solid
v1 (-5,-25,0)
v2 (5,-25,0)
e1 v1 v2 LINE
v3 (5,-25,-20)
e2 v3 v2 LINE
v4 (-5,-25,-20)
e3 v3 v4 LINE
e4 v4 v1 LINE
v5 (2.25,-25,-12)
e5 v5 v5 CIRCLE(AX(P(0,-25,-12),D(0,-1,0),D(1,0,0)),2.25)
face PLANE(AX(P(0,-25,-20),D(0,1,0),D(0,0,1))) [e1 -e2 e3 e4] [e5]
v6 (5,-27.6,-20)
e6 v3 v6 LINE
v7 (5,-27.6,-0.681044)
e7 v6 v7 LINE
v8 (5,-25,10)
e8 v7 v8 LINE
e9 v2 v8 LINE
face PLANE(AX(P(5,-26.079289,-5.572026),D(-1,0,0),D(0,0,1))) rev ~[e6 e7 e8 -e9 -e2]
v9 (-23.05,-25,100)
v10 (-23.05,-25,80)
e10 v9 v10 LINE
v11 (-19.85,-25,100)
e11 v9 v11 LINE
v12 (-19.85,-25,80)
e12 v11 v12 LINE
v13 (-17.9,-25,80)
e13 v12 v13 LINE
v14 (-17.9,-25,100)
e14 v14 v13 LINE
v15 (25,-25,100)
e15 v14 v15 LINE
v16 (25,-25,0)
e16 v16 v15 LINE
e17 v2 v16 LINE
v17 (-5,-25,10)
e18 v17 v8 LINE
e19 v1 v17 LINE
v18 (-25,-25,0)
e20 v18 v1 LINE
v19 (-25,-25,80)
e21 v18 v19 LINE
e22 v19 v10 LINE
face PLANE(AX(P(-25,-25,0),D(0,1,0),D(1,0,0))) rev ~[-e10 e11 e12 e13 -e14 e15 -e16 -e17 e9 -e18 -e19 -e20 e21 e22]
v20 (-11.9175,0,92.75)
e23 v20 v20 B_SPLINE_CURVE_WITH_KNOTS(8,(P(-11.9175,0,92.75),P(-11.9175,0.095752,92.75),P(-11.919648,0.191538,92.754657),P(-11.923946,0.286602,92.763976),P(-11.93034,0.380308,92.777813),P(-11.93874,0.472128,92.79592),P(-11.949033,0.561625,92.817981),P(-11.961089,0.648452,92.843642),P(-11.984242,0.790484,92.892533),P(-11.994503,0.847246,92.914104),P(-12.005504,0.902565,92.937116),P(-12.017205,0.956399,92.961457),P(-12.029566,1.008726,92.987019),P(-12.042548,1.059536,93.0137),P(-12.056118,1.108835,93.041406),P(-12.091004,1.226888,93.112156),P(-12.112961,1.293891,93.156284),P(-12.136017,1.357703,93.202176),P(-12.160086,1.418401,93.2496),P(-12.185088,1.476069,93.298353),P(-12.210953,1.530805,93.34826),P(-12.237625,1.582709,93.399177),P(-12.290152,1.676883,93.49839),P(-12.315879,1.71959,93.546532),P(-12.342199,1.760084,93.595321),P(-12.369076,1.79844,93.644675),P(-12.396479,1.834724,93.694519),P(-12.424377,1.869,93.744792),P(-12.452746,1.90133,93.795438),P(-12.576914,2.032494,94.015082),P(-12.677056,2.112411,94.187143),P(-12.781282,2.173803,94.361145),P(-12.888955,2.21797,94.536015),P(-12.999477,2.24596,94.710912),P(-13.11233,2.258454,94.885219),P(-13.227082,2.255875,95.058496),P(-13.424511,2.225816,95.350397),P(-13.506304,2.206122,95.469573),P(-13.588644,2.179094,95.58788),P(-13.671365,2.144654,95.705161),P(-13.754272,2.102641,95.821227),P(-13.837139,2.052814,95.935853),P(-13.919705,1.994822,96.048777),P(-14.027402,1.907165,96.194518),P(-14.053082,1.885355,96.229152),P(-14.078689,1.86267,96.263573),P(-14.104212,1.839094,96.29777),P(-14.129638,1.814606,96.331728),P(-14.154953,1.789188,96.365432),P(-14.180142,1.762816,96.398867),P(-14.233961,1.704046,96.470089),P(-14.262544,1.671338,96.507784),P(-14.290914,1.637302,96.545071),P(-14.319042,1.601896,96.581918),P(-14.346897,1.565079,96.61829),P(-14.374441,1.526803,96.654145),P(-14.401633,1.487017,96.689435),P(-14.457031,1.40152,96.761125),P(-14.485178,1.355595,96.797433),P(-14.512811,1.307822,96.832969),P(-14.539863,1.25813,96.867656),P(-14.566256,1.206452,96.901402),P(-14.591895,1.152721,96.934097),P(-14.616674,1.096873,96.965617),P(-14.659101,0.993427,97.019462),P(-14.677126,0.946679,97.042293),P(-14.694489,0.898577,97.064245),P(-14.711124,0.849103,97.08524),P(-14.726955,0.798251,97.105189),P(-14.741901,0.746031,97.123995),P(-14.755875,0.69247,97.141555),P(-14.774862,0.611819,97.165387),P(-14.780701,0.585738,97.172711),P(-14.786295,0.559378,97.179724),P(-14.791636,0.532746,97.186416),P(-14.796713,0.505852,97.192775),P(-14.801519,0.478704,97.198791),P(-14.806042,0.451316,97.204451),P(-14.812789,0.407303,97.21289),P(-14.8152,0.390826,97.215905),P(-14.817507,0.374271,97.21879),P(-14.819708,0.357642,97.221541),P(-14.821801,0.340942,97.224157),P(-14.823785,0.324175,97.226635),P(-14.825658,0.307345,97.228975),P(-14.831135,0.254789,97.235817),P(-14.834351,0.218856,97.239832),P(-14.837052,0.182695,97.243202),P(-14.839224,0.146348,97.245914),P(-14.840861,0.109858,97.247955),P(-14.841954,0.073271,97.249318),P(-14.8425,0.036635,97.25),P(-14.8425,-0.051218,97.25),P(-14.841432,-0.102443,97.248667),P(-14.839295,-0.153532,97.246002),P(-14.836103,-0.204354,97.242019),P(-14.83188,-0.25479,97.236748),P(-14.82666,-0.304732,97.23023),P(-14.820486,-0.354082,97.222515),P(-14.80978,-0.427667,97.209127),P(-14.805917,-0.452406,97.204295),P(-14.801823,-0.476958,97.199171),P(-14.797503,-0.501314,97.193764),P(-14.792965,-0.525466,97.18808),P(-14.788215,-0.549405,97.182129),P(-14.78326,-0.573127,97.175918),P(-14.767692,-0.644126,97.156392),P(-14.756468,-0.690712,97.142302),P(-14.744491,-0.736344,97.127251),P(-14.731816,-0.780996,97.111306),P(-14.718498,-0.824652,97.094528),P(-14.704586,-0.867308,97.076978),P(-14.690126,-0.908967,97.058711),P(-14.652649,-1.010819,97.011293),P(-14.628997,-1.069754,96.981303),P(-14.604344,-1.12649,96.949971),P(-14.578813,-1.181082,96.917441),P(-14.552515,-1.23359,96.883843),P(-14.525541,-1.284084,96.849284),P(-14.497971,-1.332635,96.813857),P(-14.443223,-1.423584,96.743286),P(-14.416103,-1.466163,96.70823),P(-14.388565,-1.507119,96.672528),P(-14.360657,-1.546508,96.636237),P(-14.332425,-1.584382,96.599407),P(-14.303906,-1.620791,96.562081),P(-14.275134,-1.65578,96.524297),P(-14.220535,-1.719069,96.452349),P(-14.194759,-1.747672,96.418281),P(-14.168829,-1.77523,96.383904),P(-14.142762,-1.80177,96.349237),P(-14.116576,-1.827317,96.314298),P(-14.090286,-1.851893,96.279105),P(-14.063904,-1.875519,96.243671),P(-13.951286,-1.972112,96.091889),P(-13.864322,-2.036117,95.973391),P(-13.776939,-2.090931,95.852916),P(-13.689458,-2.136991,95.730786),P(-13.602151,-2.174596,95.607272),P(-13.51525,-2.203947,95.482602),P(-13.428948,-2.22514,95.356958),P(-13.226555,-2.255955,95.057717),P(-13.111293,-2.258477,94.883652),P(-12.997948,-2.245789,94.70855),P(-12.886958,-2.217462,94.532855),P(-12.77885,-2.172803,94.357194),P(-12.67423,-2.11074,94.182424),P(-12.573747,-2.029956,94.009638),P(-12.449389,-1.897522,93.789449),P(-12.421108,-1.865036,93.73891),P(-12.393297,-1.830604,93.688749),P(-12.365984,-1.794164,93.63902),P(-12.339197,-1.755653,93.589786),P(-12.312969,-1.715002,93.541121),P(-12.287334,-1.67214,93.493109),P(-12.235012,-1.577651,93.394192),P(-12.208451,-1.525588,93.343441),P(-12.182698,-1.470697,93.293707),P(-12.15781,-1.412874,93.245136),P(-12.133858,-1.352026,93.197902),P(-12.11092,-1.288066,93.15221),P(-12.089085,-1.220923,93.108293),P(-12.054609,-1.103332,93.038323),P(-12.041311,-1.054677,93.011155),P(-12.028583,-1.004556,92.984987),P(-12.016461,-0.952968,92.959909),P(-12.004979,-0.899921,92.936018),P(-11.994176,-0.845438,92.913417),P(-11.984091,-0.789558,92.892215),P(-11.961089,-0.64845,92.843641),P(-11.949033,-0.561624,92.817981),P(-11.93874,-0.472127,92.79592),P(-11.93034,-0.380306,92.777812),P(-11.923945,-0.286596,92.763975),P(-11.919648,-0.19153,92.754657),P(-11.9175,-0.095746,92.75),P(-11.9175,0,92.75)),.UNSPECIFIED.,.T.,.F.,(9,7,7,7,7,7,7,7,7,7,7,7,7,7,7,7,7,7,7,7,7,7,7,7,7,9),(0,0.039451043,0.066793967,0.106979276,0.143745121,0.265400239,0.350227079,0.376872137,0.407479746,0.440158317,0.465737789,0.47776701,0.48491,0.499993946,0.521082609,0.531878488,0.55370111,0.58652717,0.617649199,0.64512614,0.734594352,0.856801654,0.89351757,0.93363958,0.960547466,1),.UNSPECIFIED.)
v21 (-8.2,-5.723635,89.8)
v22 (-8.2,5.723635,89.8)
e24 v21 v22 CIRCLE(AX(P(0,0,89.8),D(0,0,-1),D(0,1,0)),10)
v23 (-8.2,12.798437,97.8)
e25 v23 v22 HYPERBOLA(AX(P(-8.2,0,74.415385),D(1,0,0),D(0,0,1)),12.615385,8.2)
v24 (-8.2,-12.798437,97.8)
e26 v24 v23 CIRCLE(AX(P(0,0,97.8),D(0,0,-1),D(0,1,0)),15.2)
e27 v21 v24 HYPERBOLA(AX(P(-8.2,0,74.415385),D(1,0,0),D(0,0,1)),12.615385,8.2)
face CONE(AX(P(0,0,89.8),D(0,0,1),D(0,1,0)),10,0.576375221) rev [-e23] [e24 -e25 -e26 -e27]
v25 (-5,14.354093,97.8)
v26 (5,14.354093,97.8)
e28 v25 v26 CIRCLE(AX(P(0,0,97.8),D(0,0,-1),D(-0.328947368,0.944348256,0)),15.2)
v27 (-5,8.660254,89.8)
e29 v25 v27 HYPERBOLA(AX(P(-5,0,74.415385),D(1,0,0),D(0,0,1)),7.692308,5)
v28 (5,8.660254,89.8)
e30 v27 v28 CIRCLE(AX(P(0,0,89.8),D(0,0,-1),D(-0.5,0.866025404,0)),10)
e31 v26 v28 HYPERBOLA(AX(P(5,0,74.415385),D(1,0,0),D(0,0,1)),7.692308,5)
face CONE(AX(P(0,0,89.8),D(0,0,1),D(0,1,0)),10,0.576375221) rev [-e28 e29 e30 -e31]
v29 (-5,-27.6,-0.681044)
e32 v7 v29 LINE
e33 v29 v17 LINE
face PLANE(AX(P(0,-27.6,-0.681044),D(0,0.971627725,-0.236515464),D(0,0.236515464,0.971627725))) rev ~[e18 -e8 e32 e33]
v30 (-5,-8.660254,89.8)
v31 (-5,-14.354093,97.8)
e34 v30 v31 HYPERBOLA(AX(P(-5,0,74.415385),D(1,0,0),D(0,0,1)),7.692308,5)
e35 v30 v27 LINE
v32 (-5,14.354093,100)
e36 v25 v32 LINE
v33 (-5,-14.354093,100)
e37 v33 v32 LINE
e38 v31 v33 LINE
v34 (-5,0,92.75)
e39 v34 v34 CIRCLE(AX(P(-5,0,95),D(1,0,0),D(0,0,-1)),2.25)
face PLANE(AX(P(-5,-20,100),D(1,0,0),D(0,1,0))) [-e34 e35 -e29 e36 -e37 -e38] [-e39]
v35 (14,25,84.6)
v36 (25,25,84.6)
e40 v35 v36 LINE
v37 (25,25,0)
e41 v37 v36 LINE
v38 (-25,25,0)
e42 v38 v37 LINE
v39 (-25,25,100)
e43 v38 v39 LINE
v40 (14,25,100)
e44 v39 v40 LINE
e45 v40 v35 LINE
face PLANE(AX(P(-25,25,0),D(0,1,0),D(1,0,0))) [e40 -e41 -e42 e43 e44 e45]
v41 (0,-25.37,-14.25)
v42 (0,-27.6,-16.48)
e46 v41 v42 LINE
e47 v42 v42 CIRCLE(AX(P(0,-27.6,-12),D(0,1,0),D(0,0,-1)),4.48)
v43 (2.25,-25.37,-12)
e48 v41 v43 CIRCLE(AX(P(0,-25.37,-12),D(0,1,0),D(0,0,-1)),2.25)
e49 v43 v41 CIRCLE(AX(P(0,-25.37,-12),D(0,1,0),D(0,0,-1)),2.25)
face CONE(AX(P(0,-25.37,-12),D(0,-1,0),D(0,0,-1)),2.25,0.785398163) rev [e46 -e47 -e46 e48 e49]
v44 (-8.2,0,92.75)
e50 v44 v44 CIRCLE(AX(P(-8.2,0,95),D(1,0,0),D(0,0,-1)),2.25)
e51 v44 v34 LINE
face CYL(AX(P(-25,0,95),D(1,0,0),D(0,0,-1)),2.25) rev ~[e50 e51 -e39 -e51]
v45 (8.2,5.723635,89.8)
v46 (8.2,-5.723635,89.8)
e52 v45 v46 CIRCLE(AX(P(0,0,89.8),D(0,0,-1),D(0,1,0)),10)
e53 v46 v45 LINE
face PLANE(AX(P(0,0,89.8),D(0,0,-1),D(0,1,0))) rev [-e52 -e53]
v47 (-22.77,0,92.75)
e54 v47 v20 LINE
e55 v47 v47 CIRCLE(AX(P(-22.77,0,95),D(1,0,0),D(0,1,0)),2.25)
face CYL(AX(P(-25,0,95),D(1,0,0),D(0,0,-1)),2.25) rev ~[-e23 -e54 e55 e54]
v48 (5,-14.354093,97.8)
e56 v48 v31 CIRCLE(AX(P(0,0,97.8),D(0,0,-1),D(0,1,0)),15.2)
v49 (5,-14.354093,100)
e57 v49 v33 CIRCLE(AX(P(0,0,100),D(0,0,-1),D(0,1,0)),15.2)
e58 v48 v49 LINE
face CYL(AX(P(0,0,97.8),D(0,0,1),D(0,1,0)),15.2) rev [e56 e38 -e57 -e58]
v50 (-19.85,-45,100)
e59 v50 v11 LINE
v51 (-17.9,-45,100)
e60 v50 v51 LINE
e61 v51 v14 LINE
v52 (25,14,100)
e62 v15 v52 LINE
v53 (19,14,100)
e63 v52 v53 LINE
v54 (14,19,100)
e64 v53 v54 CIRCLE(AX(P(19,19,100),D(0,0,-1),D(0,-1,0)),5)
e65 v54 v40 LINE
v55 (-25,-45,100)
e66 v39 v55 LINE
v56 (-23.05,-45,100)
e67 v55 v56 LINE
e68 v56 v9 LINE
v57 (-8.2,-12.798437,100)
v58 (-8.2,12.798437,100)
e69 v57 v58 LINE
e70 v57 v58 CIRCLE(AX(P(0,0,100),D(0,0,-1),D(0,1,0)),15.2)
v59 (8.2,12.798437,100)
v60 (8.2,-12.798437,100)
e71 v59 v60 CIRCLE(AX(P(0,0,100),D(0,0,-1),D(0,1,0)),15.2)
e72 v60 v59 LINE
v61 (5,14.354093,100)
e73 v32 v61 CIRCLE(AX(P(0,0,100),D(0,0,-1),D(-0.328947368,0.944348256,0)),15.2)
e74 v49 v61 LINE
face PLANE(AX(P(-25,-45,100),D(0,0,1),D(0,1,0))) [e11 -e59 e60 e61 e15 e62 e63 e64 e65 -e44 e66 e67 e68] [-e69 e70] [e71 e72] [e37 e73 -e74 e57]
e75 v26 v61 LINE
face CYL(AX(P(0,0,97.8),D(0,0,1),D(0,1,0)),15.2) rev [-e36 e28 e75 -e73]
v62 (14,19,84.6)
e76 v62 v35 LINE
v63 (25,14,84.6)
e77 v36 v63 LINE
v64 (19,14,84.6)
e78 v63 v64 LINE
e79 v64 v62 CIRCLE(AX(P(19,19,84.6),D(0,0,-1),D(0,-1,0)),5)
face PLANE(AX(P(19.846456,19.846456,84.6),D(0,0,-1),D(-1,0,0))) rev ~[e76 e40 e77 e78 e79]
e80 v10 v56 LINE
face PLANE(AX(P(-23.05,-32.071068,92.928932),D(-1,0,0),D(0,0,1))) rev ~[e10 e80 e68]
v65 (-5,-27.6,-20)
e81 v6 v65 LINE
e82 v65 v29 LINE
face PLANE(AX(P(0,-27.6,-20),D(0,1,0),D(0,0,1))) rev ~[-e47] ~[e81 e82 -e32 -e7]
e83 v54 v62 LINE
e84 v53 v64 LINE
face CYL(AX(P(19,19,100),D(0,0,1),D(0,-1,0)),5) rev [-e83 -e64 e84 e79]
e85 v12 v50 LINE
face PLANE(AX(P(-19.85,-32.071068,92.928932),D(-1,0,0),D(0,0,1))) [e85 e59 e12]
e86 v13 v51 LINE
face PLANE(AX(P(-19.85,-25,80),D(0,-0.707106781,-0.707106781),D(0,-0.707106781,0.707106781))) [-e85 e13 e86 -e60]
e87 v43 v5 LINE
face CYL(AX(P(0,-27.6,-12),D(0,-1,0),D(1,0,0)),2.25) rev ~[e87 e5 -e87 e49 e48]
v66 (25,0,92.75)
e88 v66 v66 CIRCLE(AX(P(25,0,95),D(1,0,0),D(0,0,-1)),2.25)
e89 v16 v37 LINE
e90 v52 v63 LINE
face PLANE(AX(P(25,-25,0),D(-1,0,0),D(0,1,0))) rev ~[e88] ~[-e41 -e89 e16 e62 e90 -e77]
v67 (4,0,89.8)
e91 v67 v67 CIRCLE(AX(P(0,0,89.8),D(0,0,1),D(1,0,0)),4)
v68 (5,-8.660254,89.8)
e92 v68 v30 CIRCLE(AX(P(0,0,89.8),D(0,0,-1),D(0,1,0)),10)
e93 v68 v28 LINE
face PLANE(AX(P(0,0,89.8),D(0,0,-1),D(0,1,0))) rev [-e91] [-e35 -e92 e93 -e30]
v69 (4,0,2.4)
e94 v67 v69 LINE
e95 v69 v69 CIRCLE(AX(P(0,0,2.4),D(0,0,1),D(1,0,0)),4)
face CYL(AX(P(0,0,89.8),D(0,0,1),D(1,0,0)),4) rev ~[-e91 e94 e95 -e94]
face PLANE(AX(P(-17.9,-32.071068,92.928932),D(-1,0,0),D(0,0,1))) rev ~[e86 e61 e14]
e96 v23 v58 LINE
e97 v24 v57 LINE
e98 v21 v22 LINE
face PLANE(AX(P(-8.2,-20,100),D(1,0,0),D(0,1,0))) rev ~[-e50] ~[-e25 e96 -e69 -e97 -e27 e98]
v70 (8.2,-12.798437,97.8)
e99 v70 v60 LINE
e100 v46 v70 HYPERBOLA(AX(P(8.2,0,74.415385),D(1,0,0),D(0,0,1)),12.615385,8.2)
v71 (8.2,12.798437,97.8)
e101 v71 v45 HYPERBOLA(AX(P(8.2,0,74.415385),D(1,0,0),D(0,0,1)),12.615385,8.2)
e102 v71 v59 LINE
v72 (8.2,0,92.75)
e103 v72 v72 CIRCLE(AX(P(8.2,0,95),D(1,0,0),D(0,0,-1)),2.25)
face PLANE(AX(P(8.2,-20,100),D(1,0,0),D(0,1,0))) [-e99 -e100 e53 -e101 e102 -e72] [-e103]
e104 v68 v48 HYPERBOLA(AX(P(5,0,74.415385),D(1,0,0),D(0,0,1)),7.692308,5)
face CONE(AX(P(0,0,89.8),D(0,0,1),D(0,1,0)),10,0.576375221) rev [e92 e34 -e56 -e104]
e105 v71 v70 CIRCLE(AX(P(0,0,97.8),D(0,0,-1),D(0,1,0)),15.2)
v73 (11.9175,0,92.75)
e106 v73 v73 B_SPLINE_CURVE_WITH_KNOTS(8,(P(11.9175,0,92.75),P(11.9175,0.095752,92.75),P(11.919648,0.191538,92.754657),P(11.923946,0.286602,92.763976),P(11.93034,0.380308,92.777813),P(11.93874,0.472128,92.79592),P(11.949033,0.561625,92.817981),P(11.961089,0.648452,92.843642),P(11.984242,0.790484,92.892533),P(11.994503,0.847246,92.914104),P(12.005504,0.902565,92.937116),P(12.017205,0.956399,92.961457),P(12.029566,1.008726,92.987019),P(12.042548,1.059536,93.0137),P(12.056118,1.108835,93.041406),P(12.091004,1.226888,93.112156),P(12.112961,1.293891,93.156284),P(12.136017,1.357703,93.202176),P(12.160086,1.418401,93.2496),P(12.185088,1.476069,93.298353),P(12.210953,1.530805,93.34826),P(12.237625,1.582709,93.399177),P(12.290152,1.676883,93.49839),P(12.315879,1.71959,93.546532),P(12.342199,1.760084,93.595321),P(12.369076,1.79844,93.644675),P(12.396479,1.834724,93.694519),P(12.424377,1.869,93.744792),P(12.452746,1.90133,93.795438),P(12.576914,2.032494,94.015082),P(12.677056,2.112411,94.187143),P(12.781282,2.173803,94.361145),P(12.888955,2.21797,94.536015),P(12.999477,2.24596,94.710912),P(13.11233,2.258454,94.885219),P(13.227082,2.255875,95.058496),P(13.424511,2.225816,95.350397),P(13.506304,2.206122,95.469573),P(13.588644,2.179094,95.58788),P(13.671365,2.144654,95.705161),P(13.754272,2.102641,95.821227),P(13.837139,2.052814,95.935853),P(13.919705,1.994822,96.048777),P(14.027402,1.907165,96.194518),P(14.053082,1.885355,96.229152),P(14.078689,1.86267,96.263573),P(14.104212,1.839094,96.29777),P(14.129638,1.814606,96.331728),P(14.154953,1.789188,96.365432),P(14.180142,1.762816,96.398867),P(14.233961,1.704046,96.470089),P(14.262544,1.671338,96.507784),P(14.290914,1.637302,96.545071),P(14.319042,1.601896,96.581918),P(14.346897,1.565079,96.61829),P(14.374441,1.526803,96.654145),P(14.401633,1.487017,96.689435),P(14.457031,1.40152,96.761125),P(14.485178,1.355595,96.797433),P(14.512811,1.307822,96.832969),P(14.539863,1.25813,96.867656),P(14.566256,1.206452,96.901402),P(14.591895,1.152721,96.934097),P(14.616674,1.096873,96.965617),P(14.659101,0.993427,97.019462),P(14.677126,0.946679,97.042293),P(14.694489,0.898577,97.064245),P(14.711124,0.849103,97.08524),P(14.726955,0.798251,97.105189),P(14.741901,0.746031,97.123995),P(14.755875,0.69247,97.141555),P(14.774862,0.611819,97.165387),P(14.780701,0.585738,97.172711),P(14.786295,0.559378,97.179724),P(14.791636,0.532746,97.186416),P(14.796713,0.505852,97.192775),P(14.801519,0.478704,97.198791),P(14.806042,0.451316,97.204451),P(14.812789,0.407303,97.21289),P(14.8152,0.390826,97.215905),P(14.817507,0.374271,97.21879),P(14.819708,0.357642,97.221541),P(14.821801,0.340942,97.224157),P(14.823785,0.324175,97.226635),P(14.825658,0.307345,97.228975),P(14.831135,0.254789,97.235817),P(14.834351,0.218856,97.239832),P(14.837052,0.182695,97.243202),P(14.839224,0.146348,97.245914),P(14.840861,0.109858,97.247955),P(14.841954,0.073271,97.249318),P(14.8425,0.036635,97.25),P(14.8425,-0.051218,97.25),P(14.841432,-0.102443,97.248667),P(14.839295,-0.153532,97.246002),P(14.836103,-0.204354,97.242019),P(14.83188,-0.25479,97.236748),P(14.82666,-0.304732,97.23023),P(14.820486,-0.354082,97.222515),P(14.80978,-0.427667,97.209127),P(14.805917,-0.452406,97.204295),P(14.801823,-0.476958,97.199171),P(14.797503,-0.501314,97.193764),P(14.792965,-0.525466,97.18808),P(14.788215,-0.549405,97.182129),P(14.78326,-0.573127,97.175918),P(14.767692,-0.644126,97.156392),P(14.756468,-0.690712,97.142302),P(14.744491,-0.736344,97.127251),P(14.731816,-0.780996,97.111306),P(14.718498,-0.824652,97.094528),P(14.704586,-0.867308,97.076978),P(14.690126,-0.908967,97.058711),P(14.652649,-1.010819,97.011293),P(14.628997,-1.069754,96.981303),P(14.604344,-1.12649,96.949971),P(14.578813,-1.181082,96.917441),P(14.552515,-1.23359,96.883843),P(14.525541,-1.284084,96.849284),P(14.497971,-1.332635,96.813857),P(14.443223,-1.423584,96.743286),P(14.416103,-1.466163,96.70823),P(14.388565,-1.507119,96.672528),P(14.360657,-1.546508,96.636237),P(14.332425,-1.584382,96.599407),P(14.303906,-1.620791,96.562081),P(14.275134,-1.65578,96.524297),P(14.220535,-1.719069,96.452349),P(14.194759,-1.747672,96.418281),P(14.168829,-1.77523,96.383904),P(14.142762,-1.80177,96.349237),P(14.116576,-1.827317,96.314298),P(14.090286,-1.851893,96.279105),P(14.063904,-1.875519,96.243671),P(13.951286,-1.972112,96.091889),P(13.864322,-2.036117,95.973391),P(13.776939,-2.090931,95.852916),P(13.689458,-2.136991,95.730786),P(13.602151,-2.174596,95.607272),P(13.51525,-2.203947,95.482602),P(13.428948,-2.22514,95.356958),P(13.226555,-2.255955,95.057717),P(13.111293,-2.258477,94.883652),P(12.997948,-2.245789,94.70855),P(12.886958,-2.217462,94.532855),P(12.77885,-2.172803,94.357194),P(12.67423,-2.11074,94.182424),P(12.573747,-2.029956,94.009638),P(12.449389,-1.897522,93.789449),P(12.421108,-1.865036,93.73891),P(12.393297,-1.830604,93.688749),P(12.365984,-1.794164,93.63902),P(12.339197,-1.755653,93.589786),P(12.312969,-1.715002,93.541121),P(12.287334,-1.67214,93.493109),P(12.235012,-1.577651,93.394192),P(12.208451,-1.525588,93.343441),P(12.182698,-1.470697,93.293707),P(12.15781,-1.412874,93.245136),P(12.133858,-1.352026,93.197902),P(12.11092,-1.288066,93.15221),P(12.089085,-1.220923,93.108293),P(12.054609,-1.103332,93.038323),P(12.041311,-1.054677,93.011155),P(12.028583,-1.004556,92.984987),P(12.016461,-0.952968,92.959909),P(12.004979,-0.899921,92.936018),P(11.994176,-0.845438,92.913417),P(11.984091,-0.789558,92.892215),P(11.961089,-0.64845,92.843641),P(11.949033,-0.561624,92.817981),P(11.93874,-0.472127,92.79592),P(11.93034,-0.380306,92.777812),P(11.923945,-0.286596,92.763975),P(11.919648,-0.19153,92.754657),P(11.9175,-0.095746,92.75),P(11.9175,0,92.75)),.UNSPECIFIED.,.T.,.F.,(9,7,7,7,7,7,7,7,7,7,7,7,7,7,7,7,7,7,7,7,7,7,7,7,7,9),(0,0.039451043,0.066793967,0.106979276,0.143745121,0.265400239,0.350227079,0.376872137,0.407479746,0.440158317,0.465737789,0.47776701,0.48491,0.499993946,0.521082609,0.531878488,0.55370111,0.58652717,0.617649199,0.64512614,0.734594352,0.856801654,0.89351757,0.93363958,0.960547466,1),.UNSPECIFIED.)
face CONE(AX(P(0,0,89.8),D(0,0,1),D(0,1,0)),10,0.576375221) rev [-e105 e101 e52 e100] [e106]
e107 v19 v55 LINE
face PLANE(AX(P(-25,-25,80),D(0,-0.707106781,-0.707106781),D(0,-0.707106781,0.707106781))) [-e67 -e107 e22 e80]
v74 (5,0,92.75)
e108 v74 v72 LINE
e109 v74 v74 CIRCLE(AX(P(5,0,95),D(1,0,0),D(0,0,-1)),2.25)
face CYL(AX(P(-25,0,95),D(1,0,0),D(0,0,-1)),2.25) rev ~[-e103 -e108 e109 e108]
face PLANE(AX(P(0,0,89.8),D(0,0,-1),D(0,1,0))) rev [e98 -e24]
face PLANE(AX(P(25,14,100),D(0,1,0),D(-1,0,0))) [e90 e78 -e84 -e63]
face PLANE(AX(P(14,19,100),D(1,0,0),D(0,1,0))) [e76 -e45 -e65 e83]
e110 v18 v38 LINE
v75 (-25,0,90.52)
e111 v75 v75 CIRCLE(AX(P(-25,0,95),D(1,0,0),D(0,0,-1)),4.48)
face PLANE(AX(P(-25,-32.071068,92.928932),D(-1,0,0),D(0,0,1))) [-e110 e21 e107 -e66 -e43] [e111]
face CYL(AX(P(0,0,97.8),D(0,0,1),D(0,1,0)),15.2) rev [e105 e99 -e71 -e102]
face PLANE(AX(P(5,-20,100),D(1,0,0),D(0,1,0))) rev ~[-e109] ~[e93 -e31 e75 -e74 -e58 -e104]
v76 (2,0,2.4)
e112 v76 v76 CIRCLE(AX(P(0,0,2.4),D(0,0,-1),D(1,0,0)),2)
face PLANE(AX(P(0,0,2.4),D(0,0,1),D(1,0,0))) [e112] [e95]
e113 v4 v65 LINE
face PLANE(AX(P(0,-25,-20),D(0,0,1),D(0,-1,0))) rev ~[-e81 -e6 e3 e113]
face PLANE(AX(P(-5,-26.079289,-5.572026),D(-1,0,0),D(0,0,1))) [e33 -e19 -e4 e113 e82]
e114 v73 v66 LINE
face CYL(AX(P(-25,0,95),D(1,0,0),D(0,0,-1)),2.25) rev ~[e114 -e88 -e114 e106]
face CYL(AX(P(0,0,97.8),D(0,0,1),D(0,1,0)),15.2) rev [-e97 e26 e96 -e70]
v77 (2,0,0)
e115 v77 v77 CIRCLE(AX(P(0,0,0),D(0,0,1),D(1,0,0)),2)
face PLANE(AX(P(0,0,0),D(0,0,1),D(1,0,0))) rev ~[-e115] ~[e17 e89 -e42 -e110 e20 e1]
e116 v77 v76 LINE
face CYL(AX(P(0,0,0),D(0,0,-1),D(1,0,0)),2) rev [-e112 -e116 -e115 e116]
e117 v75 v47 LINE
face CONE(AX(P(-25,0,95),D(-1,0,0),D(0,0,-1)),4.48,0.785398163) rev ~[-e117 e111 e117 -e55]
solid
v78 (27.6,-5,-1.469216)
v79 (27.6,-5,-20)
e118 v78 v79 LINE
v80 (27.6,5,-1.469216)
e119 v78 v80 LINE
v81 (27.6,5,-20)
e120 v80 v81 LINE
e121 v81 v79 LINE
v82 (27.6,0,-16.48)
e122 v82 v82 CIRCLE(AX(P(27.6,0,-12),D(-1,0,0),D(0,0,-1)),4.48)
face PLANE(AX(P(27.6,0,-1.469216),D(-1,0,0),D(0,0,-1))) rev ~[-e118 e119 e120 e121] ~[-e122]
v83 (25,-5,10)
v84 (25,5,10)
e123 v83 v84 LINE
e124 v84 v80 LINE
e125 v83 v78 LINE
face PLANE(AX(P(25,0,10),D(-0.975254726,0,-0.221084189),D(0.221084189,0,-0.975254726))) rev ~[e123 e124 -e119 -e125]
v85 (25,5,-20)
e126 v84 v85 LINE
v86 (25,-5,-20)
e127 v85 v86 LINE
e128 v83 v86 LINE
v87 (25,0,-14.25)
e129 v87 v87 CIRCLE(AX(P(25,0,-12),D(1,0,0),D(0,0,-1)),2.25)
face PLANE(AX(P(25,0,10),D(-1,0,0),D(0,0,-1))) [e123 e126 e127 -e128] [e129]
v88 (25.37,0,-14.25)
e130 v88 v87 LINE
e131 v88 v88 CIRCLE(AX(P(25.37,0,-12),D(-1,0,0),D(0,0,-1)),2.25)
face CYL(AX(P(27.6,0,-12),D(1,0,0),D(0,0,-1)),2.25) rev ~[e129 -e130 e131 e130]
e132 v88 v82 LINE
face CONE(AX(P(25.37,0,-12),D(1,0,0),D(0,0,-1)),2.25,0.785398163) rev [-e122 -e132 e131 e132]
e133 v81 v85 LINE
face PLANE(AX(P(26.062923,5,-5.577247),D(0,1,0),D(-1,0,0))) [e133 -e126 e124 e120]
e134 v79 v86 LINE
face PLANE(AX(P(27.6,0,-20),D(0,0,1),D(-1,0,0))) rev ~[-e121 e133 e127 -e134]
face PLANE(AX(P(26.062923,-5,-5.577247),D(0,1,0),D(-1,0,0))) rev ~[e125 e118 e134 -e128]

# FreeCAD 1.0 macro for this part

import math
import FreeCAD as App
import Part
import Sketcher
Q = App.Units.Quantity

doc = App.newDocument("Part")
body = doc.addObject("PartDesign::Body", "Body")

# Sketch on XY plane
sketch1 = body.newObject("Sketcher::SketchObject", "Sketch")
sketch1.AttachmentSupport = (doc.getObject("XY_Plane"), [""])
sketch1.MapMode = "FlatFace"
sketch1.addGeometry(Part.LineSegment(App.Vector(-25, 25, 0), App.Vector(-25, -25, 0)), False)
sketch1.addGeometry(Part.LineSegment(App.Vector(-25, -25, 0), App.Vector(25, -25, 0)), False)
sketch1.addGeometry(Part.LineSegment(App.Vector(25, -25, 0), App.Vector(25, 25, 0)), False)
sketch1.addGeometry(Part.LineSegment(App.Vector(25, 25, 0), App.Vector(-25, 25, 0)), False)
sketch1.addGeometry(Part.Circle(App.Vector(0, 0, 0), App.Vector(0, 0, 1), 2), False)
sketch1.addConstraint(Sketcher.Constraint("Coincident", 0, 2, 1, 1))
sketch1.addConstraint(Sketcher.Constraint("Coincident", 1, 2, 2, 1))
sketch1.addConstraint(Sketcher.Constraint("Coincident", 2, 2, 3, 1))
sketch1.addConstraint(Sketcher.Constraint("Coincident", 3, 2, 0, 1))
sketch1.addConstraint(Sketcher.Constraint("Vertical", 0))
sketch1.addConstraint(Sketcher.Constraint("Horizontal", 1))
sketch1.addConstraint(Sketcher.Constraint("Vertical", 2))
sketch1.addConstraint(Sketcher.Constraint("Horizontal", 3))
sketch1.addConstraint(Sketcher.Constraint("Coincident", 4, 3, -1, 1))
sketch1.addConstraint(Sketcher.Constraint("Symmetric", 0, 2, 2, 2, -1, 1))
sketch1.addConstraint(Sketcher.Constraint("Equal", 3, 0))
sketch1.addConstraint(Sketcher.Constraint("Diameter", 4, Q("4 mm")))
sketch1.addConstraint(Sketcher.Constraint("DistanceX", 1, 1, 1, 2, Q("50 mm")))
pad1 = body.newObject("PartDesign::Pad", "Pad")
pad1.Profile = sketch1
pad1.Length = 100

# Sketch on YZ plane
sketch2 = body.newObject("Sketcher::SketchObject", "Sketch001")
sketch2.AttachmentSupport = (doc.getObject("YZ_Plane"), [""])
sketch2.MapMode = "FlatFace"
sketch2.addGeometry(Part.LineSegment(App.Vector(15.2, 100, 0), App.Vector(0, 100, 0)), False)
sketch2.addGeometry(Part.LineSegment(App.Vector(0, 100, 0), App.Vector(0, 89.8, 0)), False)
sketch2.addGeometry(Part.LineSegment(App.Vector(0, 89.8, 0), App.Vector(10, 89.8, 0)), False)
sketch2.addGeometry(Part.LineSegment(App.Vector(10, 89.8, 0), App.Vector(15.2, 97.8, 0)), False)
sketch2.addGeometry(Part.LineSegment(App.Vector(15.2, 97.8, 0), App.Vector(15.2, 100, 0)), False)
sketch2.addConstraint(Sketcher.Constraint("Coincident", 0, 2, 1, 1))
sketch2.addConstraint(Sketcher.Constraint("Coincident", 1, 2, 2, 1))
sketch2.addConstraint(Sketcher.Constraint("Coincident", 2, 2, 3, 1))
sketch2.addConstraint(Sketcher.Constraint("Coincident", 3, 2, 4, 1))
sketch2.addConstraint(Sketcher.Constraint("Coincident", 4, 2, 0, 1))
sketch2.addConstraint(Sketcher.Constraint("Horizontal", 0))
sketch2.addConstraint(Sketcher.Constraint("Vertical", 1))
sketch2.addConstraint(Sketcher.Constraint("Horizontal", 2))
sketch2.addConstraint(Sketcher.Constraint("Vertical", 4))
sketch2.addConstraint(Sketcher.Constraint("PointOnObject", 0, 2, -2))
sketch2.addConstraint(Sketcher.Constraint("DistanceX", 2, 1, 2, 2, Q("10 mm")))
sketch2.addConstraint(Sketcher.Constraint("DistanceX", 0, 2, 0, 1, Q("15.2 mm")))
sketch2.addConstraint(Sketcher.Constraint("DistanceY", 1, 2, 1, 1, Q("10.2 mm")))
sketch2.addConstraint(Sketcher.Constraint("DistanceY", 4, 1, 4, 2, Q("2.2 mm")))
sketch2.addConstraint(Sketcher.Constraint("DistanceY", -1, 1, 0, 2, Q("100 mm")))
groove = body.newObject("PartDesign::Groove", "Groove")
groove.Profile = sketch2
groove.ReferenceAxis = (sketch2, ["V_Axis"])
groove.Angle = 360

# Sketch on XY plane
sketch3 = body.newObject("Sketcher::SketchObject", "Sketch002")
sketch3.AttachmentSupport = (doc.getObject("XY_Plane"), [""])
sketch3.MapMode = "FlatFace"
sketch3.AttachmentOffset = App.Placement(App.Vector(0, 0, 100), App.Rotation())
sketch3.addGeometry(Part.LineSegment(App.Vector(-8.2, 20, 0), App.Vector(-8.2, -20, 0)), False)
sketch3.addGeometry(Part.LineSegment(App.Vector(-8.2, -20, 0), App.Vector(-5, -20, 0)), False)
sketch3.addGeometry(Part.LineSegment(App.Vector(-5, -20, 0), App.Vector(-5, 20, 0)), False)
sketch3.addGeometry(Part.LineSegment(App.Vector(-5, 20, 0), App.Vector(-8.2, 20, 0)), False)
sketch3.addGeometry(Part.LineSegment(App.Vector(5, 20, 0), App.Vector(5, -20, 0)), False)
sketch3.addGeometry(Part.LineSegment(App.Vector(5, -20, 0), App.Vector(8.2, -20, 0)), False)
sketch3.addGeometry(Part.LineSegment(App.Vector(8.2, -20, 0), App.Vector(8.2, 20, 0)), False)
sketch3.addGeometry(Part.LineSegment(App.Vector(8.2, 20, 0), App.Vector(5, 20, 0)), False)
sketch3.addConstraint(Sketcher.Constraint("Coincident", 0, 2, 1, 1))
sketch3.addConstraint(Sketcher.Constraint("Coincident", 1, 2, 2, 1))
sketch3.addConstraint(Sketcher.Constraint("Coincident", 2, 2, 3, 1))
sketch3.addConstraint(Sketcher.Constraint("Coincident", 3, 2, 0, 1))
sketch3.addConstraint(Sketcher.Constraint("Coincident", 4, 2, 5, 1))
sketch3.addConstraint(Sketcher.Constraint("Coincident", 5, 2, 6, 1))
sketch3.addConstraint(Sketcher.Constraint("Coincident", 6, 2, 7, 1))
sketch3.addConstraint(Sketcher.Constraint("Coincident", 7, 2, 4, 1))
sketch3.addConstraint(Sketcher.Constraint("Vertical", 0))
sketch3.addConstraint(Sketcher.Constraint("Horizontal", 1))
sketch3.addConstraint(Sketcher.Constraint("Vertical", 2))
sketch3.addConstraint(Sketcher.Constraint("Horizontal", 3))
sketch3.addConstraint(Sketcher.Constraint("Vertical", 4))
sketch3.addConstraint(Sketcher.Constraint("Horizontal", 5))
sketch3.addConstraint(Sketcher.Constraint("Vertical", 6))
sketch3.addConstraint(Sketcher.Constraint("Horizontal", 7))
sketch3.addConstraint(Sketcher.Constraint("Symmetric", 2, 2, 4, 2, -1, 1))
sketch3.addConstraint(Sketcher.Constraint("Symmetric", 0, 2, 6, 2, -1, 1))
sketch3.addConstraint(Sketcher.Constraint("Horizontal", 1, 2, 4, 2))
sketch3.addConstraint(Sketcher.Constraint("DistanceY", 0, 2, 0, 1, Q("40 mm")))
sketch3.addConstraint(Sketcher.Constraint("DistanceX", 1, 1, 1, 2, Q("3.2 mm")))
sketch3.addConstraint(Sketcher.Constraint("DistanceX", 1, 2, -1, 1, Q("5 mm")))
pad2 = body.newObject("PartDesign::Pad", "Pad001")
pad2.Profile = sketch3
pad2.Length = 10.2
pad2.Reversed = True

# Sketch on XY plane
sketch4 = body.newObject("Sketcher::SketchObject", "Sketch003")
sketch4.AttachmentSupport = (doc.getObject("XY_Plane"), [""])
sketch4.MapMode = "FlatFace"
sketch4.AttachmentOffset = App.Placement(App.Vector(0, 0, 89.8), App.Rotation())
sketch4.addGeometry(Part.Circle(App.Vector(0, 0, 0), App.Vector(0, 0, 1), 4), False)
sketch4.addConstraint(Sketcher.Constraint("Coincident", 0, 3, -1, 1))
sketch4.addConstraint(Sketcher.Constraint("Diameter", 0, Q("8 mm")))
pocket1 = body.newObject("PartDesign::Pocket", "Pocket")
pocket1.Profile = sketch4
pocket1.Length = 87.4

# Sketch on YZ plane
sketch5 = body.newObject("Sketcher::SketchObject", "Sketch004")
sketch5.AttachmentSupport = (doc.getObject("YZ_Plane"), [""])
sketch5.MapMode = "FlatFace"
sketch5.AttachmentOffset = App.Placement(App.Vector(0, 0, 25), App.Rotation())
sketch5.addGeometry(Part.Circle(App.Vector(0, 95, 0), App.Vector(0, 0, 1), 2), False)
sketch5.addConstraint(Sketcher.Constraint("PointOnObject", 0, 3, -2))
sketch5.addConstraint(Sketcher.Constraint("Diameter", 0, Q("4 mm")))
sketch5.addConstraint(Sketcher.Constraint("DistanceY", -1, 1, 0, 3, Q("95 mm")))
pocket2 = body.newObject("PartDesign::Pocket", "Pocket001")
pocket2.Profile = sketch5
pocket2.Length = 50

# Sketch on YZ plane
sketch6 = body.newObject("Sketcher::SketchObject", "Sketch005")
sketch6.AttachmentSupport = (doc.getObject("YZ_Plane"), [""])
sketch6.MapMode = "FlatFace"
sketch6.AttachmentOffset = App.Placement(App.Vector(0, 0, -25), App.Rotation())
sketch6.addGeometry(Part.Circle(App.Vector(0, 95, 0), App.Vector(0, 0, 1), 2.2), False)
sketch6.addConstraint(Sketcher.Constraint("PointOnObject", 0, 3, -2))
sketch6.addConstraint(Sketcher.Constraint("Diameter", 0, Q("4.5 mm")))
sketch6.addConstraint(Sketcher.Constraint("DistanceY", -1, 1, 0, 3, Q("95 mm")))
doc.recompute()
hole = body.newObject("PartDesign::Hole", "Hole")
hole.Profile = sketch6
hole.ThreadType = "None"
hole.Diameter = 4.5
hole.DepthType = "ThroughAll"
hole.HoleCutType = "Countersink"
hole.HoleCutDiameter = 8.96
hole.HoleCutCountersinkAngle = 90
hole.Reversed = True

# Sketch on YZ plane
sketch7 = body.newObject("Sketcher::SketchObject", "Sketch006")
sketch7.AttachmentSupport = (doc.getObject("YZ_Plane"), [""])
sketch7.MapMode = "FlatFace"
sketch7.AttachmentOffset = App.Placement(App.Vector(0, 0, -25), App.Rotation())
sketch7.addGeometry(Part.LineSegment(App.Vector(-25, 100, 0), App.Vector(-25, 80, 0)), False)
sketch7.addGeometry(Part.LineSegment(App.Vector(-25, 80, 0), App.Vector(-45, 100, 0)), False)
sketch7.addGeometry(Part.LineSegment(App.Vector(-45, 100, 0), App.Vector(-25, 100, 0)), False)
sketch7.addConstraint(Sketcher.Constraint("Coincident", 0, 2, 1, 1))
sketch7.addConstraint(Sketcher.Constraint("Coincident", 1, 2, 2, 1))
sketch7.addConstraint(Sketcher.Constraint("Coincident", 2, 2, 0, 1))
sketch7.addConstraint(Sketcher.Constraint("Vertical", 0))
sketch7.addConstraint(Sketcher.Constraint("Horizontal", 2))
sketch7.addConstraint(Sketcher.Constraint("Equal", 2, 0))
sketch7.addConstraint(Sketcher.Constraint("DistanceX", 2, 1, 2, 2, Q("20 mm")))
sketch7.addConstraint(Sketcher.Constraint("DistanceX", 0, 2, -1, 1, Q("25 mm")))
sketch7.addConstraint(Sketcher.Constraint("DistanceY", -1, 1, 0, 2, Q("80 mm")))
pad3 = body.newObject("PartDesign::Pad", "Pad002")
pad3.Profile = sketch7
pad3.Length = 1.95

# Sketch on YZ plane
sketch8 = body.newObject("Sketcher::SketchObject", "Sketch007")
sketch8.AttachmentSupport = (doc.getObject("YZ_Plane"), [""])
sketch8.MapMode = "FlatFace"
sketch8.AttachmentOffset = App.Placement(App.Vector(0, 0, -19.85), App.Rotation())
sketch8.addGeometry(Part.LineSegment(App.Vector(-25, 100, 0), App.Vector(-25, 80, 0)), False)
sketch8.addGeometry(Part.LineSegment(App.Vector(-25, 80, 0), App.Vector(-45, 100, 0)), False)
sketch8.addGeometry(Part.LineSegment(App.Vector(-45, 100, 0), App.Vector(-25, 100, 0)), False)
sketch8.addConstraint(Sketcher.Constraint("Coincident", 0, 2, 1, 1))
sketch8.addConstraint(Sketcher.Constraint("Coincident", 1, 2, 2, 1))
sketch8.addConstraint(Sketcher.Constraint("Coincident", 2, 2, 0, 1))
sketch8.addConstraint(Sketcher.Constraint("Vertical", 0))
sketch8.addConstraint(Sketcher.Constraint("Horizontal", 2))
sketch8.addConstraint(Sketcher.Constraint("Equal", 2, 0))
sketch8.addConstraint(Sketcher.Constraint("DistanceX", 2, 1, 2, 2, Q("20 mm")))
sketch8.addConstraint(Sketcher.Constraint("DistanceX", 0, 2, -1, 1, Q("25 mm")))
sketch8.addConstraint(Sketcher.Constraint("DistanceY", -1, 1, 0, 2, Q("80 mm")))
pad4 = body.newObject("PartDesign::Pad", "Pad003")
pad4.Profile = sketch8
pad4.Length = 1.95

# Sketch on XY plane
sketch9 = body.newObject("Sketcher::SketchObject", "Sketch008")
sketch9.AttachmentSupport = (doc.getObject("XY_Plane"), [""])
sketch9.MapMode = "FlatFace"
sketch9.AttachmentOffset = App.Placement(App.Vector(0, 0, 100), App.Rotation())
sketch9.addGeometry(Part.LineSegment(App.Vector(25, 14, 0), App.Vector(25, 25, 0)), False)
sketch9.addGeometry(Part.LineSegment(App.Vector(25, 25, 0), App.Vector(14, 25, 0)), False)
sketch9.addGeometry(Part.LineSegment(App.Vector(14, 25, 0), App.Vector(14, 19, 0)), False)
sketch9.addGeometry(Part.ArcOfCircle(Part.Circle(App.Vector(19, 19, 0), App.Vector(0, 0, 1), 5), math.radians(180), math.radians(270)), False)
sketch9.addGeometry(Part.LineSegment(App.Vector(19, 14, 0), App.Vector(25, 14, 0)), False)
sketch9.addConstraint(Sketcher.Constraint("Coincident", 0, 2, 1, 1))
sketch9.addConstraint(Sketcher.Constraint("Coincident", 1, 2, 2, 1))
sketch9.addConstraint(Sketcher.Constraint("Tangent", 2, 2, 3, 1))
sketch9.addConstraint(Sketcher.Constraint("Tangent", 3, 2, 4, 1))
sketch9.addConstraint(Sketcher.Constraint("Coincident", 4, 2, 0, 1))
sketch9.addConstraint(Sketcher.Constraint("Vertical", 0))
sketch9.addConstraint(Sketcher.Constraint("Horizontal", 1))
sketch9.addConstraint(Sketcher.Constraint("Vertical", 2))
sketch9.addConstraint(Sketcher.Constraint("Horizontal", 4))
sketch9.addConstraint(Sketcher.Constraint("Equal", 1, 0))
sketch9.addConstraint(Sketcher.Constraint("Radius", 3, Q("5 mm")))
sketch9.addConstraint(Sketcher.Constraint("DistanceX", 1, 2, 1, 1, Q("11 mm")))
sketch9.addConstraint(Sketcher.Constraint("DistanceX", -1, 1, 3, 3, Q("19 mm")))
sketch9.addConstraint(Sketcher.Constraint("DistanceY", -1, 1, 3, 3, Q("19 mm")))
pocket3 = body.newObject("PartDesign::Pocket", "Pocket002")
pocket3.Profile = sketch9
pocket3.Length = 15.4

# Sketch on YZ plane
sketch10 = body.newObject("Sketcher::SketchObject", "Sketch009")
sketch10.AttachmentSupport = (doc.getObject("YZ_Plane"), [""])
sketch10.MapMode = "FlatFace"
sketch10.addGeometry(Part.LineSegment(App.Vector(-25, -20, 0), App.Vector(-25, 10, 0)), False)
sketch10.addGeometry(Part.LineSegment(App.Vector(-25, 10, 0), App.Vector(-27.6, -0.7, 0)), False)
sketch10.addGeometry(Part.LineSegment(App.Vector(-27.6, -0.7, 0), App.Vector(-27.6, -20, 0)), False)
sketch10.addGeometry(Part.LineSegment(App.Vector(-27.6, -20, 0), App.Vector(-25, -20, 0)), False)
sketch10.addConstraint(Sketcher.Constraint("Coincident", 0, 2, 1, 1))
sketch10.addConstraint(Sketcher.Constraint("Coincident", 1, 2, 2, 1))
sketch10.addConstraint(Sketcher.Constraint("Coincident", 2, 2, 3, 1))
sketch10.addConstraint(Sketcher.Constraint("Coincident", 3, 2, 0, 1))
sketch10.addConstraint(Sketcher.Constraint("Vertical", 0))
sketch10.addConstraint(Sketcher.Constraint("Vertical", 2))
sketch10.addConstraint(Sketcher.Constraint("Horizontal", 3))
sketch10.addConstraint(Sketcher.Constraint("DistanceY", 0, 1, 0, 2, Q("30 mm")))
sketch10.addConstraint(Sketcher.Constraint("DistanceX", 3, 1, 3, 2, Q("2.6 mm")))
sketch10.addConstraint(Sketcher.Constraint("DistanceX", 0, 2, -1, 1, Q("25 mm")))
sketch10.addConstraint(Sketcher.Constraint("DistanceY", -1, 1, 0, 2, Q("10 mm")))
sketch10.addConstraint(Sketcher.Constraint("Distance", 1, Q("10.992939 mm")))
pad5 = body.newObject("PartDesign::Pad", "Pad004")
pad5.Profile = sketch10
pad5.Type = "TwoLengths"
pad5.Length = 5
pad5.Length2 = 5

# Sketch on XZ plane
sketch11 = body.newObject("Sketcher::SketchObject", "Sketch010")
sketch11.AttachmentSupport = (doc.getObject("XZ_Plane"), [""])
sketch11.MapMode = "FlatFace"
sketch11.AttachmentOffset = App.Placement(App.Vector(0, 0, 27.6), App.Rotation())
sketch11.addGeometry(Part.Circle(App.Vector(0, -12, 0), App.Vector(0, 0, 1), 2.2), False)
sketch11.addConstraint(Sketcher.Constraint("PointOnObject", 0, 3, -2))
sketch11.addConstraint(Sketcher.Constraint("Diameter", 0, Q("4.5 mm")))
sketch11.addConstraint(Sketcher.Constraint("DistanceY", 0, 3, -1, 1, Q("12 mm")))
pocket4 = body.newObject("PartDesign::Pocket", "Pocket003")
pocket4.Profile = sketch11
pocket4.Length = 2.6

# Sketch on YZ plane
sketch12 = body.newObject("Sketcher::SketchObject", "Sketch011")
sketch12.AttachmentSupport = (doc.getObject("YZ_Plane"), [""])
sketch12.MapMode = "FlatFace"
sketch12.addGeometry(Part.LineSegment(App.Vector(25, -12, 0), App.Vector(-27.6, -12, 0)), False)
sketch12.addGeometry(Part.LineSegment(App.Vector(-27.6, -12, 0), App.Vector(-27.6, -16.5, 0)), False)
sketch12.addGeometry(Part.LineSegment(App.Vector(-27.6, -16.5, 0), App.Vector(-25.4, -14.2, 0)), False)
sketch12.addGeometry(Part.LineSegment(App.Vector(-25.4, -14.2, 0), App.Vector(25, -14.2, 0)), False)
sketch12.addGeometry(Part.LineSegment(App.Vector(25, -14.2, 0), App.Vector(25, -12, 0)), False)
sketch12.addGeometry(Part.LineSegment(App.Vector(-27.6, -12, 0), App.Vector(25, -12, 0)), True)  # axis
sketch12.addConstraint(Sketcher.Constraint("Coincident", 0, 2, 1, 1))
sketch12.addConstraint(Sketcher.Constraint("Coincident", 1, 2, 2, 1))
sketch12.addConstraint(Sketcher.Constraint("Coincident", 2, 2, 3, 1))
sketch12.addConstraint(Sketcher.Constraint("Coincident", 3, 2, 4, 1))
sketch12.addConstraint(Sketcher.Constraint("Coincident", 4, 2, 0, 1))
sketch12.addConstraint(Sketcher.Constraint("Horizontal", 0))
sketch12.addConstraint(Sketcher.Constraint("Vertical", 1))
sketch12.addConstraint(Sketcher.Constraint("Horizontal", 3))
sketch12.addConstraint(Sketcher.Constraint("Vertical", 4))
sketch12.addConstraint(Sketcher.Constraint("Horizontal", 5))
sketch12.addConstraint(Sketcher.Constraint("Coincident", 5, 1, 0, 2))
sketch12.addConstraint(Sketcher.Constraint("Vertical", 3, 2, 5, 2))
sketch12.addConstraint(Sketcher.Constraint("Angle", 2, Q("45 deg")))
sketch12.addConstraint(Sketcher.Constraint("DistanceX", 0, 2, 0, 1, Q("52.6 mm")))
sketch12.addConstraint(Sketcher.Constraint("DistanceY", 0, 2, -1, 1, Q("12 mm")))
sketch12.addConstraint(Sketcher.Constraint("DistanceX", -1, 1, 3, 2, Q("25 mm")))
sketch12.addConstraint(Sketcher.Constraint("DistanceX", 3, 1, 3, 2, Q("50.37 mm")))
sketch12.addConstraint(Sketcher.Constraint("DistanceY", 1, 2, 1, 1, Q("4.48 mm")))
groove2 = body.newObject("PartDesign::Groove", "Groove001")
groove2.Profile = sketch12
groove2.ReferenceAxis = (sketch12, ["Axis0"])
groove2.Angle = 360
body2 = doc.addObject("PartDesign::Body", "Body001")

# Sketch on XZ plane
sketch13 = body2.newObject("Sketcher::SketchObject", "Sketch012")
sketch13.AttachmentSupport = (doc.getObject("XZ_Plane001"), [""])
sketch13.MapMode = "FlatFace"
sketch13.addGeometry(Part.LineSegment(App.Vector(25, 10, 0), App.Vector(25, -20, 0)), False)
sketch13.addGeometry(Part.LineSegment(App.Vector(25, -20, 0), App.Vector(27.6, -20, 0)), False)
sketch13.addGeometry(Part.LineSegment(App.Vector(27.6, -20, 0), App.Vector(27.6, -1.5, 0)), False)
sketch13.addGeometry(Part.LineSegment(App.Vector(27.6, -1.5, 0), App.Vector(25, 10, 0)), False)
sketch13.addConstraint(Sketcher.Constraint("Coincident", 0, 2, 1, 1))
sketch13.addConstraint(Sketcher.Constraint("Coincident", 1, 2, 2, 1))
sketch13.addConstraint(Sketcher.Constraint("Coincident", 2, 2, 3, 1))
sketch13.addConstraint(Sketcher.Constraint("Coincident", 3, 2, 0, 1))
sketch13.addConstraint(Sketcher.Constraint("Vertical", 0))
sketch13.addConstraint(Sketcher.Constraint("Horizontal", 1))
sketch13.addConstraint(Sketcher.Constraint("Vertical", 2))
sketch13.addConstraint(Sketcher.Constraint("DistanceY", 0, 2, 0, 1, Q("30 mm")))
sketch13.addConstraint(Sketcher.Constraint("DistanceX", 1, 1, 1, 2, Q("2.6 mm")))
sketch13.addConstraint(Sketcher.Constraint("DistanceX", -1, 1, 0, 2, Q("25 mm")))
sketch13.addConstraint(Sketcher.Constraint("DistanceY", 0, 2, -1, 1, Q("20 mm")))
sketch13.addConstraint(Sketcher.Constraint("DistanceY", 2, 1, 2, 2, Q("18.530784 mm")))
pad6 = body2.newObject("PartDesign::Pad", "Pad005")
pad6.Profile = sketch13
pad6.Type = "TwoLengths"
pad6.Length = 5
pad6.Length2 = 5

# Sketch on YZ plane
sketch14 = body2.newObject("Sketcher::SketchObject", "Sketch013")
sketch14.AttachmentSupport = (doc.getObject("YZ_Plane001"), [""])
sketch14.MapMode = "FlatFace"
sketch14.AttachmentOffset = App.Placement(App.Vector(0, 0, 27.6), App.Rotation())
sketch14.addGeometry(Part.Circle(App.Vector(0, -12, 0), App.Vector(0, 0, 1), 2.2), False)
sketch14.addConstraint(Sketcher.Constraint("PointOnObject", 0, 3, -2))
sketch14.addConstraint(Sketcher.Constraint("Diameter", 0, Q("4.5 mm")))
sketch14.addConstraint(Sketcher.Constraint("DistanceY", 0, 3, -1, 1, Q("12 mm")))
pocket5 = body2.newObject("PartDesign::Pocket", "Pocket004")
pocket5.Profile = sketch14
pocket5.Length = 2.6

# Sketch on XZ plane
sketch15 = body2.newObject("Sketcher::SketchObject", "Sketch014")
sketch15.AttachmentSupport = (doc.getObject("XZ_Plane001"), [""])
sketch15.MapMode = "FlatFace"
sketch15.addGeometry(Part.LineSegment(App.Vector(-25, -12, 0), App.Vector(27.6, -12, 0)), False)
sketch15.addGeometry(Part.LineSegment(App.Vector(27.6, -12, 0), App.Vector(27.6, -16.5, 0)), False)
sketch15.addGeometry(Part.LineSegment(App.Vector(27.6, -16.5, 0), App.Vector(25.4, -14.2, 0)), False)
sketch15.addGeometry(Part.LineSegment(App.Vector(25.4, -14.2, 0), App.Vector(-25, -14.2, 0)), False)
sketch15.addGeometry(Part.LineSegment(App.Vector(-25, -14.2, 0), App.Vector(-25, -12, 0)), False)
sketch15.addGeometry(Part.LineSegment(App.Vector(27.6, -12, 0), App.Vector(-25, -12, 0)), True)  # axis
sketch15.addConstraint(Sketcher.Constraint("Coincident", 0, 2, 1, 1))
sketch15.addConstraint(Sketcher.Constraint("Coincident", 1, 2, 2, 1))
sketch15.addConstraint(Sketcher.Constraint("Coincident", 2, 2, 3, 1))
sketch15.addConstraint(Sketcher.Constraint("Coincident", 3, 2, 4, 1))
sketch15.addConstraint(Sketcher.Constraint("Coincident", 4, 2, 0, 1))
sketch15.addConstraint(Sketcher.Constraint("Horizontal", 0))
sketch15.addConstraint(Sketcher.Constraint("Vertical", 1))
sketch15.addConstraint(Sketcher.Constraint("Horizontal", 3))
sketch15.addConstraint(Sketcher.Constraint("Vertical", 4))
sketch15.addConstraint(Sketcher.Constraint("Horizontal", 5))
sketch15.addConstraint(Sketcher.Constraint("Coincident", 5, 1, 0, 2))
sketch15.addConstraint(Sketcher.Constraint("Vertical", 3, 2, 5, 2))
sketch15.addConstraint(Sketcher.Constraint("Angle", 2, Q("135 deg")))
sketch15.addConstraint(Sketcher.Constraint("DistanceX", 0, 1, 0, 2, Q("52.6 mm")))
sketch15.addConstraint(Sketcher.Constraint("DistanceY", 0, 2, -1, 1, Q("12 mm")))
sketch15.addConstraint(Sketcher.Constraint("DistanceX", 3, 2, -1, 1, Q("25 mm")))
sketch15.addConstraint(Sketcher.Constraint("DistanceX", 3, 2, 3, 1, Q("50.37 mm")))
sketch15.addConstraint(Sketcher.Constraint("DistanceY", 1, 2, 1, 1, Q("4.48 mm")))
groove3 = body2.newObject("PartDesign::Groove", "Groove002")
groove3.Profile = sketch15
groove3.ReferenceAxis = (sketch15, ["Axis0"])
groove3.Angle = 360

doc.recompute()
